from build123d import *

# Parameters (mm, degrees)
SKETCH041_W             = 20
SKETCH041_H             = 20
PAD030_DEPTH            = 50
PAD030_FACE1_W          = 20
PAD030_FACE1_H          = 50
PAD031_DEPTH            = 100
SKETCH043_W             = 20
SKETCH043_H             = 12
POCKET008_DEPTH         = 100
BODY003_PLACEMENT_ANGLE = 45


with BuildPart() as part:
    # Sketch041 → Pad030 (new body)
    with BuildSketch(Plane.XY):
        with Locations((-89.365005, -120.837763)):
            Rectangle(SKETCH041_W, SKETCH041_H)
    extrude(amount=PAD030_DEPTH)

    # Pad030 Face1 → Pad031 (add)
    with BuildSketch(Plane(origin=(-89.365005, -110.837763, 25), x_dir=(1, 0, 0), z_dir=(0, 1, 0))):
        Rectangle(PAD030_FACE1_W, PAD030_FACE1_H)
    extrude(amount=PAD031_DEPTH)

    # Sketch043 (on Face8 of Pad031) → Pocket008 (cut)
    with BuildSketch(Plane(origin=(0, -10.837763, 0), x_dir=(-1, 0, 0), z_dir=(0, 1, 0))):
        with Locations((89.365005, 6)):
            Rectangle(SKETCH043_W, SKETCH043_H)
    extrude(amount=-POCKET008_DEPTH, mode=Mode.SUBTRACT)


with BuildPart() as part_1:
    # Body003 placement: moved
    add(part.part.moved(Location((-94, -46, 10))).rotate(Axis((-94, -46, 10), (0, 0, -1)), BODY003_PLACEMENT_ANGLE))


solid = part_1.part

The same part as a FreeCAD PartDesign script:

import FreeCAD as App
import Part
import Sketcher

V = App.Vector
Q = App.Units.Quantity


def add_polygon(sketch, points):
    """Adds a closed chain of lines whose ends are joined by coincident constraints."""
    first, n = sketch.GeometryCount, len(points)
    for a, b in zip(points, points[1:] + points[:1]):
        sketch.addGeometry(Part.LineSegment(App.Vector(*a, 0), App.Vector(*b, 0)), False)
    for i in range(n):
        sketch.addConstraint(Sketcher.Constraint("Coincident", first + i, 2, first + (i + 1) % n, 1))

doc = App.newDocument("Part")
body = doc.addObject("PartDesign::Body", "Body")

sketch1 = body.newObject("Sketcher::SketchObject", "Sketch")
sketch1.AttachmentSupport = (doc.getObject("XY_Plane"), [""])
sketch1.MapMode = "FlatFace"
add_polygon(sketch1, [(-99, -111), (-99, -131), (-79, -131), (-79, -111)])
sketch1.addConstraint(Sketcher.Constraint("Vertical", 0))
sketch1.addConstraint(Sketcher.Constraint("Horizontal", 1))
sketch1.addConstraint(Sketcher.Constraint("Vertical", 2))
sketch1.addConstraint(Sketcher.Constraint("Horizontal", 3))
sketch1.addConstraint(Sketcher.Constraint("Equal", 3, 0))
sketch1.addConstraint(Sketcher.Constraint("DistanceX", 1, 1, 1, 2, Q("20 mm")))
sketch1.addConstraint(Sketcher.Constraint("DistanceX", 0, 2, -1, 1, Q("99.365005 mm")))
sketch1.addConstraint(Sketcher.Constraint("DistanceY", 0, 2, -1, 1, Q("130.837763 mm")))
pad1 = body.newObject("PartDesign::Pad", "Pad")
pad1.Profile = sketch1
pad1.Length = 50

sketch2 = body.newObject("Sketcher::SketchObject", "Sketch001")
sketch2.AttachmentSupport = (doc.getObject("XZ_Plane"), [""])
sketch2.MapMode = "FlatFace"
sketch2.AttachmentOffset = App.Placement(V(0, 0, 110.837763), App.Rotation())
add_polygon(sketch2, [(-99, 0), (-99, 50), (-79, 50), (-79, 0)])
sketch2.addConstraint(Sketcher.Constraint("Vertical", 0))
sketch2.addConstraint(Sketcher.Constraint("Horizontal", 1))
sketch2.addConstraint(Sketcher.Constraint("Vertical", 2))
sketch2.addConstraint(Sketcher.Constraint("Horizontal", 3))
sketch2.addConstraint(Sketcher.Constraint("PointOnObject", 2, 2, -1))
sketch2.addConstraint(Sketcher.Constraint("DistanceX", 1, 1, 1, 2, Q("20 mm")))
sketch2.addConstraint(Sketcher.Constraint("DistanceY", 0, 1, 0, 2, Q("50 mm")))
sketch2.addConstraint(Sketcher.Constraint("DistanceX", 0, 2, -1, 1, Q("99.365005 mm")))
pad2 = body.newObject("PartDesign::Pad", "Pad001")
pad2.Profile = sketch2
pad2.Length = 100
pad2.Reversed = True

sketch3 = body.newObject("Sketcher::SketchObject", "Sketch002")
sketch3.AttachmentSupport = (doc.getObject("XZ_Plane"), [""])
sketch3.MapMode = "FlatFace"
sketch3.AttachmentOffset = App.Placement(V(0, 0, 10.837763), App.Rotation())
add_polygon(sketch3, [(-79, 12), (-79, 0), (-99, 0), (-99, 12)])
sketch3.addConstraint(Sketcher.Constraint("Vertical", 0))
sketch3.addConstraint(Sketcher.Constraint("Horizontal", 1))
sketch3.addConstraint(Sketcher.Constraint("Vertical", 2))
sketch3.addConstraint(Sketcher.Constraint("Horizontal", 3))
sketch3.addConstraint(Sketcher.Constraint("PointOnObject", 0, 2, -1))
sketch3.addConstraint(Sketcher.Constraint("DistanceX", 1, 2, 1, 1, Q("20 mm")))
sketch3.addConstraint(Sketcher.Constraint("DistanceY", 0, 2, 0, 1, Q("12 mm")))
sketch3.addConstraint(Sketcher.Constraint("DistanceX", 0, 2, -1, 1, Q("79.365005 mm")))
pocket1 = body.newObject("PartDesign::Pocket", "Pocket")
pocket1.Profile = sketch3
pocket1.Length = 100
pocket1.Reversed = True
body2 = doc.addObject("PartDesign::Body", "Body001")
doc.recompute()

body.Placement = App.Placement(V(-94, -46, 10), App.Rotation(V(0, 0, -1), 45))
boolean = body2.newObject("PartDesign::Boolean", "Boolean")
boolean.Type = "Fuse"
boolean.addObjects([body])

doc.recompute()
